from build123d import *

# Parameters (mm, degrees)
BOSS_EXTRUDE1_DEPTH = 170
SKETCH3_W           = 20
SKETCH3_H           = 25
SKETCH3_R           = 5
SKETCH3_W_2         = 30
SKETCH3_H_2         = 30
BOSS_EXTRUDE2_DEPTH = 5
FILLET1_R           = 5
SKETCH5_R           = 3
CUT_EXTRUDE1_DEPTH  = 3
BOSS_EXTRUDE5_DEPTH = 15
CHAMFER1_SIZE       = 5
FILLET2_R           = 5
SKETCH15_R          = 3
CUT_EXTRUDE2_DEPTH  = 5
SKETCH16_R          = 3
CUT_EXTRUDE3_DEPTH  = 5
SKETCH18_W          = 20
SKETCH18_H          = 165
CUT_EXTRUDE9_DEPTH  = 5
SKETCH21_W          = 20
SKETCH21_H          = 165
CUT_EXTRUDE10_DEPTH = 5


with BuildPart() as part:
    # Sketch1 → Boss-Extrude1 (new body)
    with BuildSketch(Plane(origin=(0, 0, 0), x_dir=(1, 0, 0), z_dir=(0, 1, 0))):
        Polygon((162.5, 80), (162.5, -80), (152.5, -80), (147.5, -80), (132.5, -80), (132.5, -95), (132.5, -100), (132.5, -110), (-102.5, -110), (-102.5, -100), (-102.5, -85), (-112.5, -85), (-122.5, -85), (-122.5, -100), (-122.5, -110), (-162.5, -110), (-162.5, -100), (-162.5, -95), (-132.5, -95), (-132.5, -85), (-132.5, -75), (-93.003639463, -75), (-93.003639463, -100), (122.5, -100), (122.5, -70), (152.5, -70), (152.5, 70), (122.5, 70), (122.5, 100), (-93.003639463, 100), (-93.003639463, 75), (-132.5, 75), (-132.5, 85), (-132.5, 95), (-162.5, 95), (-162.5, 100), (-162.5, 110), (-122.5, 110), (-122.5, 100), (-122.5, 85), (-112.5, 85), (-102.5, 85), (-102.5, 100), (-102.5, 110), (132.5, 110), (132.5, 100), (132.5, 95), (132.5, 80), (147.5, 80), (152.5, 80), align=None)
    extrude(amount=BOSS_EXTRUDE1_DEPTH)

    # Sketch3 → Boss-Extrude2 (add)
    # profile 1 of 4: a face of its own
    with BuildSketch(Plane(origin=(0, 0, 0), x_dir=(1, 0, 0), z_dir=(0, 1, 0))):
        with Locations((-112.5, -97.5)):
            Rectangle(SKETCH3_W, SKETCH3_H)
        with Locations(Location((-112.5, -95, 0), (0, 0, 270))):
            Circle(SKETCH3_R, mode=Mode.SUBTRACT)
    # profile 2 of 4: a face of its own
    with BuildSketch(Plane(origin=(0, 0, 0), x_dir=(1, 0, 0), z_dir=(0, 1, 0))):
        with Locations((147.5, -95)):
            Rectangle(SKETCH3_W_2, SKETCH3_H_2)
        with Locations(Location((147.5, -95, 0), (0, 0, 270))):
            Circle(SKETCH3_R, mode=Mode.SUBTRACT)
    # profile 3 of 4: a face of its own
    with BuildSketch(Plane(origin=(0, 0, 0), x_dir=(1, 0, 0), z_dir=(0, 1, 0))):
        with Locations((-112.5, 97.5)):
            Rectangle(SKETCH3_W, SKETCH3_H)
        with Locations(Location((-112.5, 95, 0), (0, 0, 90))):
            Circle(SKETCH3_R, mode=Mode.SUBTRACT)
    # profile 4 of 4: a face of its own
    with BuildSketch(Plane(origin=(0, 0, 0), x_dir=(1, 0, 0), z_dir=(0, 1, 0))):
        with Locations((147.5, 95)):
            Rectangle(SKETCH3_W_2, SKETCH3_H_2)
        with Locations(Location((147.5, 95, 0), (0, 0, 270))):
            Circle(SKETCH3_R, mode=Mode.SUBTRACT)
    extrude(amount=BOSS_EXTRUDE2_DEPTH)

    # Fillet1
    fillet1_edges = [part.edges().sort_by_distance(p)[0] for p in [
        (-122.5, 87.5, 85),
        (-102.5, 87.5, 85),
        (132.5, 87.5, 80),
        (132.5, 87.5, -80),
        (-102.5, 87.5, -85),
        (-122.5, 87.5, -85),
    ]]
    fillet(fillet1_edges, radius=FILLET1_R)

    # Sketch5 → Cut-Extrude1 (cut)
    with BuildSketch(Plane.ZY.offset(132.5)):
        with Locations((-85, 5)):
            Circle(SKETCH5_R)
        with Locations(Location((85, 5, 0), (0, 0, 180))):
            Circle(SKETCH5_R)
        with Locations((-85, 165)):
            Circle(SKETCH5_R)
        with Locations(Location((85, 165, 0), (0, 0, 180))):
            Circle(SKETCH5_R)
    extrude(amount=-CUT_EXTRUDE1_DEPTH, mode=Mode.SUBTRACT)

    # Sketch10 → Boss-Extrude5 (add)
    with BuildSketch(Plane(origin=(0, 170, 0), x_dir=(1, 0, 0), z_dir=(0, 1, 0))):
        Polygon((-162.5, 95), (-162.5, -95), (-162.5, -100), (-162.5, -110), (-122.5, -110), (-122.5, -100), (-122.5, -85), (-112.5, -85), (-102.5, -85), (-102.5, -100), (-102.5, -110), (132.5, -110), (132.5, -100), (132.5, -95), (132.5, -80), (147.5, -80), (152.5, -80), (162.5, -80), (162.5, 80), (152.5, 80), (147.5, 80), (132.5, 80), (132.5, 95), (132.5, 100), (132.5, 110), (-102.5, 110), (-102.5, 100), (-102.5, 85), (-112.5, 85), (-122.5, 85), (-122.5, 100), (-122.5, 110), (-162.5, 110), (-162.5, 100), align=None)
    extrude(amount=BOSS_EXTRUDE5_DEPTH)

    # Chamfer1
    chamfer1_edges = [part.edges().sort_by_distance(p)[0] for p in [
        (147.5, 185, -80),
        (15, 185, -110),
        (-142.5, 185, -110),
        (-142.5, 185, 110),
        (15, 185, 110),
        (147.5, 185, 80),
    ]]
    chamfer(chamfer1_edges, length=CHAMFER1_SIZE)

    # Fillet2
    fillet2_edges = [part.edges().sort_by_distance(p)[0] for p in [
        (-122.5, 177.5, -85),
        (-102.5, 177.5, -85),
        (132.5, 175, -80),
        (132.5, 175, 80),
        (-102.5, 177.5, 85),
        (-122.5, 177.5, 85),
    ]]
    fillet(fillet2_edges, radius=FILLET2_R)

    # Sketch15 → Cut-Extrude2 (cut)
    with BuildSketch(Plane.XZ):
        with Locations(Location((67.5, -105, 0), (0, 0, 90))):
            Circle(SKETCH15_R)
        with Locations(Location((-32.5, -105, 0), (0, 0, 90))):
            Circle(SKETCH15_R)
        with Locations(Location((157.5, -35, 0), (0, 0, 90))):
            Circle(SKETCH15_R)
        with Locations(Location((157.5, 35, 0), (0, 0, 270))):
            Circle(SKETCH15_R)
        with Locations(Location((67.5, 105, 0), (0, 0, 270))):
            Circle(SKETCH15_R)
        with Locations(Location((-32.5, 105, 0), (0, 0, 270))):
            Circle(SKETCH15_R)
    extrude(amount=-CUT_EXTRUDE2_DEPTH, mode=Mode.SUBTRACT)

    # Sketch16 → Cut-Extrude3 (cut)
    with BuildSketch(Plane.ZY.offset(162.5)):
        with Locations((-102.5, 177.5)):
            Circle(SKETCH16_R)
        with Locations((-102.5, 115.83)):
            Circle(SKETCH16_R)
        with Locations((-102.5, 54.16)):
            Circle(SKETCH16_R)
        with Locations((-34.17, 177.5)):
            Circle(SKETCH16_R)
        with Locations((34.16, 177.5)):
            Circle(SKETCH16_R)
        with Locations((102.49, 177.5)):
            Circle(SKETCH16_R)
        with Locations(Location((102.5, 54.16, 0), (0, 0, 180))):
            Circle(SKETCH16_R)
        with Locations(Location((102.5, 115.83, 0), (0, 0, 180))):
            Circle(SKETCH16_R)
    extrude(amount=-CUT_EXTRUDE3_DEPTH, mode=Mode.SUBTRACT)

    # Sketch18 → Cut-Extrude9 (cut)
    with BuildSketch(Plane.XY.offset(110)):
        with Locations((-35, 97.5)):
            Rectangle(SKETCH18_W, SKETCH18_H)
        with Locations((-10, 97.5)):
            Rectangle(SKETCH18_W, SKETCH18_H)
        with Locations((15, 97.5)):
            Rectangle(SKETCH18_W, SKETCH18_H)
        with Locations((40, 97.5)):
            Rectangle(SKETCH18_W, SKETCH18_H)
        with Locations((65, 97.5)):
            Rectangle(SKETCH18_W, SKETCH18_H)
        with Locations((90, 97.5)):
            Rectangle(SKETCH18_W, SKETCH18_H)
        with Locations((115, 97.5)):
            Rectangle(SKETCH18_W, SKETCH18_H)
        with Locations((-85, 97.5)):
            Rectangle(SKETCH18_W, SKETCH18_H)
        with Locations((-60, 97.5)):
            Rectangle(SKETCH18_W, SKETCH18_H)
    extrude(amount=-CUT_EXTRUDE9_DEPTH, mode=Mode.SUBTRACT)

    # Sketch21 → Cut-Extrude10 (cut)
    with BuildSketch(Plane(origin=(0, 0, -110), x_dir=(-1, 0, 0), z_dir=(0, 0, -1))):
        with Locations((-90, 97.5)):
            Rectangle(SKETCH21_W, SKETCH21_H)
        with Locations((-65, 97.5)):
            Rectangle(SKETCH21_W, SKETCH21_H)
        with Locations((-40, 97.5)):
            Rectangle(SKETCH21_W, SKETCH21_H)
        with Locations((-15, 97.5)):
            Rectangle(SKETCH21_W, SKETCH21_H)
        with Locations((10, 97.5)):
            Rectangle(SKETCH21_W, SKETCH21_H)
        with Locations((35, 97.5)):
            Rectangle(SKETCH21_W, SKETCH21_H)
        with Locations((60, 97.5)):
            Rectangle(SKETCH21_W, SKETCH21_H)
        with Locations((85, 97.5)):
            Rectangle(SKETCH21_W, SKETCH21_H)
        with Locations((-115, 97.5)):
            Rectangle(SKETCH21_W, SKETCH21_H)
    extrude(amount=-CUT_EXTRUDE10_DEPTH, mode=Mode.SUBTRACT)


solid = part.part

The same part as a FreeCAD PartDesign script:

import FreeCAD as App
import Part
import Sketcher

V = App.Vector


def edges_at(feature, points):
    """Names of the edges that pass closest to the given points."""
    edges = feature.Shape.Edges
    near = lambda p: min(range(len(edges)), key=lambda i: edges[i].distToShape(Part.Vertex(*p))[0])
    return sorted({f"Edge{near(p) + 1}" for p in points})

doc = App.newDocument("Part")
body = doc.addObject("PartDesign::Body", "Body")

sketch1 = doc.addObject("Sketcher::SketchObject", "Sketch")
body.addObject(sketch1)
sketch1.AttachmentSupport = (doc.XZ_Plane, [""])
sketch1.MapMode = "FlatFace"
sketch1.addGeometry([
    Part.LineSegment(V(162, 80, 0), V(162, -80, 0)),
    Part.LineSegment(V(162, -80, 0), V(132, -80, 0)),
    Part.LineSegment(V(132, -80, 0), V(132, -110, 0)),
    Part.LineSegment(V(132, -110, 0), V(-102, -110, 0)),
    Part.LineSegment(V(-102, -110, 0), V(-102, -85, 0)),
    Part.LineSegment(V(-102, -85, 0), V(-122, -85, 0)),
    Part.LineSegment(V(-122, -85, 0), V(-122, -110, 0)),
    Part.LineSegment(V(-122, -110, 0), V(-162, -110, 0)),
    Part.LineSegment(V(-162, -110, 0), V(-162, -95, 0)),
    Part.LineSegment(V(-162, -95, 0), V(-132, -95, 0)),
    Part.LineSegment(V(-132, -95, 0), V(-132, -75, 0)),
    Part.LineSegment(V(-132, -75, 0), V(-93, -75, 0)),
    Part.LineSegment(V(-93, -75, 0), V(-93, -100, 0)),
    Part.LineSegment(V(-93, -100, 0), V(122, -100, 0)),
    Part.LineSegment(V(122, -100, 0), V(122, -70, 0)),
    Part.LineSegment(V(122, -70, 0), V(152, -70, 0)),
    Part.LineSegment(V(152, -70, 0), V(152, 70, 0)),
    Part.LineSegment(V(152, 70, 0), V(122, 70, 0)),
    Part.LineSegment(V(122, 70, 0), V(122, 100, 0)),
    Part.LineSegment(V(122, 100, 0), V(-93, 100, 0)),
    Part.LineSegment(V(-93, 100, 0), V(-93, 75, 0)),
    Part.LineSegment(V(-93, 75, 0), V(-132, 75, 0)),
    Part.LineSegment(V(-132, 75, 0), V(-132, 95, 0)),
    Part.LineSegment(V(-132, 95, 0), V(-162, 95, 0)),
    Part.LineSegment(V(-162, 95, 0), V(-162, 110, 0)),
    Part.LineSegment(V(-162, 110, 0), V(-122, 110, 0)),
    Part.LineSegment(V(-122, 110, 0), V(-122, 85, 0)),
    Part.LineSegment(V(-122, 85, 0), V(-102, 85, 0)),
    Part.LineSegment(V(-102, 85, 0), V(-102, 110, 0)),
    Part.LineSegment(V(-102, 110, 0), V(132, 110, 0)),
    Part.LineSegment(V(132, 110, 0), V(132, 80, 0)),
    Part.LineSegment(V(132, 80, 0), V(162, 80, 0)),
], False)
sketch1.addConstraint([
    Sketcher.Constraint("Coincident", 0, 2, 1, 1),
    Sketcher.Constraint("Coincident", 1, 2, 2, 1),
    Sketcher.Constraint("Coincident", 2, 2, 3, 1),
    Sketcher.Constraint("Coincident", 3, 2, 4, 1),
    Sketcher.Constraint("Coincident", 4, 2, 5, 1),
    Sketcher.Constraint("Coincident", 5, 2, 6, 1),
    Sketcher.Constraint("Coincident", 6, 2, 7, 1),
    Sketcher.Constraint("Coincident", 7, 2, 8, 1),
    Sketcher.Constraint("Coincident", 8, 2, 9, 1),
    Sketcher.Constraint("Coincident", 9, 2, 10, 1),
    Sketcher.Constraint("Coincident", 10, 2, 11, 1),
    Sketcher.Constraint("Coincident", 11, 2, 12, 1),
    Sketcher.Constraint("Coincident", 12, 2, 13, 1),
    Sketcher.Constraint("Coincident", 13, 2, 14, 1),
    Sketcher.Constraint("Coincident", 14, 2, 15, 1),
    Sketcher.Constraint("Coincident", 15, 2, 16, 1),
    Sketcher.Constraint("Coincident", 16, 2, 17, 1),
    Sketcher.Constraint("Coincident", 17, 2, 18, 1),
    Sketcher.Constraint("Coincident", 18, 2, 19, 1),
    Sketcher.Constraint("Coincident", 19, 2, 20, 1),
    Sketcher.Constraint("Coincident", 20, 2, 21, 1),
    Sketcher.Constraint("Coincident", 21, 2, 22, 1),
    Sketcher.Constraint("Coincident", 22, 2, 23, 1),
    Sketcher.Constraint("Coincident", 23, 2, 24, 1),
    Sketcher.Constraint("Coincident", 24, 2, 25, 1),
    Sketcher.Constraint("Coincident", 25, 2, 26, 1),
    Sketcher.Constraint("Coincident", 26, 2, 27, 1),
    Sketcher.Constraint("Coincident", 27, 2, 28, 1),
    Sketcher.Constraint("Coincident", 28, 2, 29, 1),
    Sketcher.Constraint("Coincident", 29, 2, 30, 1),
    Sketcher.Constraint("Coincident", 30, 2, 31, 1),
    Sketcher.Constraint("Coincident", 31, 2, 0, 1),
    Sketcher.Constraint("Vertical", 0),
    Sketcher.Constraint("Horizontal", 1),
    Sketcher.Constraint("Vertical", 2),
    Sketcher.Constraint("Horizontal", 3),
    Sketcher.Constraint("Vertical", 4),
    Sketcher.Constraint("Horizontal", 5),
    Sketcher.Constraint("Vertical", 6),
    Sketcher.Constraint("Horizontal", 7),
    Sketcher.Constraint("Vertical", 8),
    Sketcher.Constraint("Horizontal", 9),
    Sketcher.Constraint("Vertical", 10),
    Sketcher.Constraint("Horizontal", 11),
    Sketcher.Constraint("Vertical", 12),
    Sketcher.Constraint("Horizontal", 13),
    Sketcher.Constraint("Vertical", 14),
    Sketcher.Constraint("Horizontal", 15),
    Sketcher.Constraint("Vertical", 16),
    Sketcher.Constraint("Horizontal", 17),
    Sketcher.Constraint("Vertical", 18),
    Sketcher.Constraint("Horizontal", 19),
    Sketcher.Constraint("Vertical", 20),
    Sketcher.Constraint("Horizontal", 21),
    Sketcher.Constraint("Vertical", 22),
    Sketcher.Constraint("Horizontal", 23),
    Sketcher.Constraint("Vertical", 24),
    Sketcher.Constraint("Horizontal", 25),
    Sketcher.Constraint("Vertical", 26),
    Sketcher.Constraint("Horizontal", 27),
    Sketcher.Constraint("Vertical", 28),
    Sketcher.Constraint("Horizontal", 29),
    Sketcher.Constraint("Vertical", 30),
    Sketcher.Constraint("Horizontal", 31),
    Sketcher.Constraint("Symmetric", 14, 2, 17, 2, -1),
    Sketcher.Constraint("Symmetric", 12, 2, 19, 2, -1),
    Sketcher.Constraint("Symmetric", 10, 2, 21, 2, -1),
    Sketcher.Constraint("Symmetric", 8, 2, 23, 2, -1),
    Sketcher.Constraint("Symmetric", 6, 2, 25, 2, -1),
    Sketcher.Constraint("Symmetric", 4, 2, 27, 2, -1),
    Sketcher.Constraint("Symmetric", 2, 2, 29, 2, -1),
    Sketcher.Constraint("Horizontal", 3, 2, 6, 2),
    Sketcher.Constraint("Equal", 1, 9),
    Sketcher.Constraint("Equal", 9, 15),
    Sketcher.Constraint("Equal", 31, 2),
    Sketcher.Constraint("Equal", 27, 10),
    Sketcher.Constraint("Equal", 6, 12),
    Sketcher.Constraint("Equal", 2, 14),
    Sketcher.Constraint("Equal", 18, 30),
    Sketcher.Constraint("DistanceX", 1, 2, 1, 1, 30.0),
    Sketcher.Constraint("DistanceX", 3, 2, 3, 1, 235.0),
    Sketcher.Constraint("DistanceX", 5, 2, 5, 1, 20.0),
    Sketcher.Constraint("DistanceX", 7, 2, 7, 1, 40.0),
    Sketcher.Constraint("DistanceY", 0, 2, 0, 1, 160.0),
    Sketcher.Constraint("DistanceY", 4, 1, 4, 2, 25.0),
    Sketcher.Constraint("DistanceY", 8, 1, 8, 2, 15.0),
    Sketcher.Constraint("DistanceX", 13, 2, 2, 2, 10.0),
    Sketcher.Constraint("DistanceX", -1, 1, 0, 2, 162.5),
    Sketcher.Constraint("DistanceX", 11, 1, 11, 2, 39.496361),
])
pad1 = doc.addObject("PartDesign::Pad", "Pad")
body.addObject(pad1)
pad1.Profile = sketch1
pad1.Length = 170
pad1.Reversed = True

sketch2 = doc.addObject("Sketcher::SketchObject", "Sketch001")
body.addObject(sketch2)
sketch2.AttachmentSupport = (doc.XZ_Plane, [""])
sketch2.MapMode = "FlatFace"
sketch2.addGeometry([
    Part.LineSegment(V(-122, 85, 0), V(-122, 110, 0)),
    Part.LineSegment(V(-122, 110, 0), V(-102, 110, 0)),
    Part.LineSegment(V(-102, 110, 0), V(-102, 85, 0)),
    Part.LineSegment(V(-102, 85, 0), V(-122, 85, 0)),
    Part.Circle(V(-112, 95, 0), V(0, 0, 1), 5),
    Part.LineSegment(V(132, 80, 0), V(132, 110, 0)),
    Part.LineSegment(V(132, 110, 0), V(162, 110, 0)),
    Part.LineSegment(V(162, 110, 0), V(162, 80, 0)),
    Part.LineSegment(V(162, 80, 0), V(132, 80, 0)),
    Part.Circle(V(148, 95, 0), V(0, 0, 1), 5),
    Part.LineSegment(V(-122, -110, 0), V(-122, -85, 0)),
    Part.LineSegment(V(-122, -85, 0), V(-102, -85, 0)),
    Part.LineSegment(V(-102, -85, 0), V(-102, -110, 0)),
    Part.LineSegment(V(-102, -110, 0), V(-122, -110, 0)),
    Part.Circle(V(-112, -95, 0), V(0, 0, 1), 5),
    Part.LineSegment(V(132, -110, 0), V(132, -80, 0)),
    Part.LineSegment(V(132, -80, 0), V(162, -80, 0)),
    Part.LineSegment(V(162, -80, 0), V(162, -110, 0)),
    Part.LineSegment(V(162, -110, 0), V(132, -110, 0)),
    Part.Circle(V(148, -95, 0), V(0, 0, 1), 5),
], False)
sketch2.addConstraint([
    Sketcher.Constraint("Coincident", 0, 2, 1, 1),
    Sketcher.Constraint("Coincident", 1, 2, 2, 1),
    Sketcher.Constraint("Coincident", 2, 2, 3, 1),
    Sketcher.Constraint("Coincident", 3, 2, 0, 1),
    Sketcher.Constraint("Coincident", 5, 2, 6, 1),
    Sketcher.Constraint("Coincident", 6, 2, 7, 1),
    Sketcher.Constraint("Coincident", 7, 2, 8, 1),
    Sketcher.Constraint("Coincident", 8, 2, 5, 1),
    Sketcher.Constraint("Coincident", 10, 2, 11, 1),
    Sketcher.Constraint("Coincident", 11, 2, 12, 1),
    Sketcher.Constraint("Coincident", 12, 2, 13, 1),
    Sketcher.Constraint("Coincident", 13, 2, 10, 1),
    Sketcher.Constraint("Coincident", 15, 2, 16, 1),
    Sketcher.Constraint("Coincident", 16, 2, 17, 1),
    Sketcher.Constraint("Coincident", 17, 2, 18, 1),
    Sketcher.Constraint("Coincident", 18, 2, 15, 1),
    Sketcher.Constraint("Vertical", 0),
    Sketcher.Constraint("Horizontal", 1),
    Sketcher.Constraint("Vertical", 2),
    Sketcher.Constraint("Horizontal", 3),
    Sketcher.Constraint("Vertical", 5),
    Sketcher.Constraint("Horizontal", 6),
    Sketcher.Constraint("Vertical", 7),
    Sketcher.Constraint("Horizontal", 8),
    Sketcher.Constraint("Vertical", 10),
    Sketcher.Constraint("Horizontal", 11),
    Sketcher.Constraint("Vertical", 12),
    Sketcher.Constraint("Horizontal", 13),
    Sketcher.Constraint("Vertical", 15),
    Sketcher.Constraint("Horizontal", 16),
    Sketcher.Constraint("Vertical", 17),
    Sketcher.Constraint("Horizontal", 18),
    Sketcher.Constraint("Equal", 4, 9),
    Sketcher.Constraint("Equal", 9, 14),
    Sketcher.Constraint("Equal", 14, 19),
    Sketcher.Constraint("Symmetric", 4, 3, 14, 3, -1),
    Sketcher.Constraint("Symmetric", 9, 3, 19, 3, -1),
    Sketcher.Constraint("Symmetric", 3, 2, 10, 2, -1),
    Sketcher.Constraint("Symmetric", 1, 2, 12, 2, -1),
    Sketcher.Constraint("Symmetric", 8, 2, 15, 2, -1),
    Sketcher.Constraint("Symmetric", 6, 2, 17, 2, -1),
    Sketcher.Constraint("Horizontal", 4, 3, 9, 3),
    Sketcher.Constraint("Horizontal", 1, 2, 5, 2),
    Sketcher.Constraint("Equal", 18, 5),
    Sketcher.Constraint("Diameter", 4, 10.0),
    Sketcher.Constraint("DistanceX", 1, 1, 1, 2, 20.0),
    Sketcher.Constraint("DistanceX", 6, 1, 6, 2, 30.0),
    Sketcher.Constraint("DistanceY", 0, 1, 0, 2, 25.0),
    Sketcher.Constraint("DistanceY", -1, 1, 4, 3, 95.0),
    Sketcher.Constraint("DistanceY", -1, 1, 0, 2, 110.0),
    Sketcher.Constraint("DistanceX", 4, 3, 9, 3, 260.0),
    Sketcher.Constraint("DistanceX", 0, 2, 4, 3, 10.0),
    Sketcher.Constraint("DistanceX", 5, 2, 9, 3, 15.0),
    Sketcher.Constraint("DistanceX", 4, 3, -1, 1, 112.5),
])
pad2 = doc.addObject("PartDesign::Pad", "Pad001")
body.addObject(pad2)
pad2.Profile = sketch2
pad2.Length = 5
pad2.Reversed = True
doc.recompute()

fillet = doc.addObject("PartDesign::Fillet", "Fillet")
body.addObject(fillet)
fillet.Base = (pad2, edges_at(pad2, [
    (-122.5, 87.5, 85),
    (-102.5, 87.5, 85),
    (132.5, 87.5, 80),
    (132.5, 87.5, -80),
    (-102.5, 87.5, -85),
    (-122.5, 87.5, -85),
]))
fillet.Radius = 5

sketch3 = doc.addObject("Sketcher::SketchObject", "Sketch002")
body.addObject(sketch3)
sketch3.AttachmentSupport = (doc.YZ_Plane, [""])
sketch3.MapMode = "FlatFace"
sketch3.AttachmentOffset = App.Placement(V(0, 0, -132.5), App.Rotation())
sketch3.addGeometry([
    Part.Circle(V(5, -85, 0), V(0, 0, 1), 3),
    Part.Circle(V(5, 85, 0), V(0, 0, 1), 3),
    Part.Circle(V(165, -85, 0), V(0, 0, 1), 3),
    Part.Circle(V(165, 85, 0), V(0, 0, 1), 3),
], False)
sketch3.addConstraint([
    Sketcher.Constraint("Equal", 0, 1),
    Sketcher.Constraint("Equal", 1, 2),
    Sketcher.Constraint("Equal", 2, 3),
    Sketcher.Constraint("Symmetric", 0, 3, 1, 3, -1),
    Sketcher.Constraint("Symmetric", 2, 3, 3, 3, -1),
    Sketcher.Constraint("Horizontal", 0, 3, 2, 3),
    Sketcher.Constraint("Diameter", 0, 6.0),
    Sketcher.Constraint("DistanceX", -1, 1, 0, 3, 5.0),
    Sketcher.Constraint("DistanceY", 0, 3, -1, 1, 85.0),
    Sketcher.Constraint("DistanceX", -1, 1, 2, 3, 165.0),
])
pocket1 = doc.addObject("PartDesign::Pocket", "Pocket")
body.addObject(pocket1)
pocket1.Profile = sketch3
pocket1.Length = 3
pocket1.Reversed = True

sketch4 = doc.addObject("Sketcher::SketchObject", "Sketch003")
body.addObject(sketch4)
sketch4.AttachmentSupport = (doc.XZ_Plane, [""])
sketch4.MapMode = "FlatFace"
sketch4.AttachmentOffset = App.Placement(V(0, 0, -170), App.Rotation())
sketch4.addGeometry([
    Part.LineSegment(V(-162, 110, 0), V(-122, 110, 0)),
    Part.LineSegment(V(-122, 110, 0), V(-122, 85, 0)),
    Part.LineSegment(V(-122, 85, 0), V(-102, 85, 0)),
    Part.LineSegment(V(-102, 85, 0), V(-102, 110, 0)),
    Part.LineSegment(V(-102, 110, 0), V(132, 110, 0)),
    Part.LineSegment(V(132, 110, 0), V(132, 80, 0)),
    Part.LineSegment(V(132, 80, 0), V(162, 80, 0)),
    Part.LineSegment(V(162, 80, 0), V(162, -80, 0)),
    Part.LineSegment(V(162, -80, 0), V(132, -80, 0)),
    Part.LineSegment(V(132, -80, 0), V(132, -110, 0)),
    Part.LineSegment(V(132, -110, 0), V(-102, -110, 0)),
    Part.LineSegment(V(-102, -110, 0), V(-102, -85, 0)),
    Part.LineSegment(V(-102, -85, 0), V(-122, -85, 0)),
    Part.LineSegment(V(-122, -85, 0), V(-122, -110, 0)),
    Part.LineSegment(V(-122, -110, 0), V(-162, -110, 0)),
    Part.LineSegment(V(-162, -110, 0), V(-162, 110, 0)),
], False)
sketch4.addConstraint([
    Sketcher.Constraint("Coincident", 0, 2, 1, 1),
    Sketcher.Constraint("Coincident", 1, 2, 2, 1),
    Sketcher.Constraint("Coincident", 2, 2, 3, 1),
    Sketcher.Constraint("Coincident", 3, 2, 4, 1),
    Sketcher.Constraint("Coincident", 4, 2, 5, 1),
    Sketcher.Constraint("Coincident", 5, 2, 6, 1),
    Sketcher.Constraint("Coincident", 6, 2, 7, 1),
    Sketcher.Constraint("Coincident", 7, 2, 8, 1),
    Sketcher.Constraint("Coincident", 8, 2, 9, 1),
    Sketcher.Constraint("Coincident", 9, 2, 10, 1),
    Sketcher.Constraint("Coincident", 10, 2, 11, 1),
    Sketcher.Constraint("Coincident", 11, 2, 12, 1),
    Sketcher.Constraint("Coincident", 12, 2, 13, 1),
    Sketcher.Constraint("Coincident", 13, 2, 14, 1),
    Sketcher.Constraint("Coincident", 14, 2, 15, 1),
    Sketcher.Constraint("Coincident", 15, 2, 0, 1),
    Sketcher.Constraint("Horizontal", 0),
    Sketcher.Constraint("Vertical", 1),
    Sketcher.Constraint("Horizontal", 2),
    Sketcher.Constraint("Vertical", 3),
    Sketcher.Constraint("Horizontal", 4),
    Sketcher.Constraint("Vertical", 5),
    Sketcher.Constraint("Horizontal", 6),
    Sketcher.Constraint("Vertical", 7),
    Sketcher.Constraint("Horizontal", 8),
    Sketcher.Constraint("Vertical", 9),
    Sketcher.Constraint("Horizontal", 10),
    Sketcher.Constraint("Vertical", 11),
    Sketcher.Constraint("Horizontal", 12),
    Sketcher.Constraint("Vertical", 13),
    Sketcher.Constraint("Horizontal", 14),
    Sketcher.Constraint("Vertical", 15),
    Sketcher.Constraint("Symmetric", 5, 2, 8, 2, -1),
    Sketcher.Constraint("Symmetric", 3, 2, 10, 2, -1),
    Sketcher.Constraint("Symmetric", 1, 2, 12, 2, -1),
    Sketcher.Constraint("Horizontal", 0, 2, 3, 2),
    Sketcher.Constraint("Horizontal", 10, 2, 13, 2),
    Sketcher.Constraint("Equal", 8, 5),
    Sketcher.Constraint("DistanceX", 0, 1, 0, 2, 40.0),
    Sketcher.Constraint("DistanceX", 2, 1, 2, 2, 20.0),
    Sketcher.Constraint("DistanceX", 4, 1, 4, 2, 235.0),
    Sketcher.Constraint("DistanceX", 6, 1, 6, 2, 30.0),
    Sketcher.Constraint("DistanceY", 1, 2, 1, 1, 25.0),
    Sketcher.Constraint("DistanceY", 7, 2, 7, 1, 160.0),
    Sketcher.Constraint("DistanceX", 0, 2, -1, 1, 122.5),
])
pad3 = doc.addObject("PartDesign::Pad", "Pad002")
body.addObject(pad3)
pad3.Profile = sketch4
pad3.Length = 15
pad3.Reversed = True
doc.recompute()

chamfer = doc.addObject("PartDesign::Chamfer", "Chamfer")
body.addObject(chamfer)
chamfer.Base = (pad3, edges_at(pad3, [
    (147.5, 185, -80),
    (15, 185, -110),
    (-142.5, 185, -110),
    (-142.5, 185, 110),
    (15, 185, 110),
    (147.5, 185, 80),
]))
chamfer.Size = 5
doc.recompute()

fillet2 = doc.addObject("PartDesign::Fillet", "Fillet001")
body.addObject(fillet2)
fillet2.Base = (chamfer, edges_at(chamfer, [
    (-122.5, 177.5, -85),
    (-102.5, 177.5, -85),
    (132.5, 175, -80),
    (132.5, 175, 80),
    (-102.5, 177.5, 85),
    (-122.5, 177.5, 85),
]))
fillet2.Radius = 5

sketch5 = doc.addObject("Sketcher::SketchObject", "Sketch004")
body.addObject(sketch5)
sketch5.AttachmentSupport = (doc.XZ_Plane, [""])
sketch5.MapMode = "FlatFace"
sketch5.addGeometry([
    Part.Circle(V(67.5, -105, 0), V(0, 0, 1), 3),
    Part.Circle(V(-32.5, -105, 0), V(0, 0, 1), 3),
    Part.Circle(V(157.5, -35, 0), V(0, 0, 1), 3),
    Part.Circle(V(157.5, 35, 0), V(0, 0, 1), 3),
    Part.Circle(V(67.5, 105, 0), V(0, 0, 1), 3),
    Part.Circle(V(-32.5, 105, 0), V(0, 0, 1), 3),
], False)
sketch5.addConstraint([
    Sketcher.Constraint("Equal", 0, 1),
    Sketcher.Constraint("Equal", 1, 2),
    Sketcher.Constraint("Equal", 2, 3),
    Sketcher.Constraint("Equal", 3, 4),
    Sketcher.Constraint("Equal", 4, 5),
    Sketcher.Constraint("Symmetric", 2, 3, 3, 3, -1),
    Sketcher.Constraint("Symmetric", 0, 3, 4, 3, -1),
    Sketcher.Constraint("Symmetric", 1, 3, 5, 3, -1),
    Sketcher.Constraint("Horizontal", 0, 3, 1, 3),
    Sketcher.Constraint("Diameter", 0, 6.0),
    Sketcher.Constraint("DistanceY", 0, 3, -1, 1, 105.0),
    Sketcher.Constraint("DistanceY", 2, 3, -1, 1, 35.0),
    Sketcher.Constraint("DistanceX", 1, 3, 0, 3, 100.0),
    Sketcher.Constraint("DistanceX", 0, 3, 2, 3, 90.0),
    Sketcher.Constraint("DistanceX", -1, 1, 0, 3, 67.5),
])
pocket2 = doc.addObject("PartDesign::Pocket", "Pocket001")
body.addObject(pocket2)
pocket2.Profile = sketch5
pocket2.Length = 5

sketch6 = doc.addObject("Sketcher::SketchObject", "Sketch005")
body.addObject(sketch6)
sketch6.AttachmentSupport = (doc.YZ_Plane, [""])
sketch6.MapMode = "FlatFace"
sketch6.AttachmentOffset = App.Placement(V(0, 0, -162.5), App.Rotation())
sketch6.addGeometry([
    Part.Circle(V(177.5, -102.5, 0), V(0, 0, 1), 3),
    Part.Circle(V(115.8, -102.5, 0), V(0, 0, 1), 3),
    Part.Circle(V(54.2, -102.5, 0), V(0, 0, 1), 3),
    Part.Circle(V(177.5, -34.2, 0), V(0, 0, 1), 3),
    Part.Circle(V(177.5, 34.2, 0), V(0, 0, 1), 3),
    Part.Circle(V(177.5, 102.5, 0), V(0, 0, 1), 3),
    Part.Circle(V(54.2, 102.5, 0), V(0, 0, 1), 3),
    Part.Circle(V(115.8, 102.5, 0), V(0, 0, 1), 3),
], False)
sketch6.addConstraint([
    Sketcher.Constraint("Equal", 0, 1),
    Sketcher.Constraint("Equal", 1, 2),
    Sketcher.Constraint("Equal", 2, 3),
    Sketcher.Constraint("Equal", 3, 4),
    Sketcher.Constraint("Equal", 4, 5),
    Sketcher.Constraint("Equal", 5, 6),
    Sketcher.Constraint("Equal", 6, 7),
    Sketcher.Constraint("Symmetric", 2, 3, 6, 3, -1),
    Sketcher.Constraint("Symmetric", 1, 3, 7, 3, -1),
    Sketcher.Constraint("Horizontal", 0, 3, 1, 3),
    Sketcher.Constraint("Horizontal", 1, 3, 2, 3),
    Sketcher.Constraint("Vertical", 0, 3, 3, 3),
    Sketcher.Constraint("Vertical", 3, 3, 4, 3),
    Sketcher.Constraint("Vertical", 4, 3, 5, 3),
    Sketcher.Constraint("Diameter", 0, 6.0),
    Sketcher.Constraint("DistanceY", 2, 3, 6, 3, 205.0),
    Sketcher.Constraint("DistanceX", -1, 1, 0, 3, 177.5),
    Sketcher.Constraint("DistanceX", -1, 1, 1, 3, 115.83),
    Sketcher.Constraint("DistanceX", -1, 1, 2, 3, 54.16),
    Sketcher.Constraint("DistanceY", 3, 3, -1, 1, 34.17),
    Sketcher.Constraint("DistanceY", -1, 1, 4, 3, 34.16),
    Sketcher.Constraint("DistanceY", -1, 1, 5, 3, 102.49),
])
pocket3 = doc.addObject("PartDesign::Pocket", "Pocket002")
body.addObject(pocket3)
pocket3.Profile = sketch6
pocket3.Length = 5
pocket3.Reversed = True

sketch7 = doc.addObject("Sketcher::SketchObject", "Sketch006")
body.addObject(sketch7)
sketch7.AttachmentSupport = (doc.XY_Plane, [""])
sketch7.MapMode = "FlatFace"
sketch7.AttachmentOffset = App.Placement(V(0, 0, 110), App.Rotation())
sketch7.addGeometry([
    Part.LineSegment(V(-45, 180, 0), V(-45, 15, 0)),
    Part.LineSegment(V(-45, 15, 0), V(-25, 15, 0)),
    Part.LineSegment(V(-25, 15, 0), V(-25, 180, 0)),
    Part.LineSegment(V(-25, 180, 0), V(-45, 180, 0)),
    Part.LineSegment(V(-20, 180, 0), V(-20, 15, 0)),
    Part.LineSegment(V(-20, 15, 0), V(0, 15, 0)),
    Part.LineSegment(V(0, 15, 0), V(0, 180, 0)),
    Part.LineSegment(V(0, 180, 0), V(-20, 180, 0)),
    Part.LineSegment(V(5, 180, 0), V(5, 15, 0)),
    Part.LineSegment(V(5, 15, 0), V(25, 15, 0)),
    Part.LineSegment(V(25, 15, 0), V(25, 180, 0)),
    Part.LineSegment(V(25, 180, 0), V(5, 180, 0)),
    Part.LineSegment(V(30, 180, 0), V(30, 15, 0)),
    Part.LineSegment(V(30, 15, 0), V(50, 15, 0)),
    Part.LineSegment(V(50, 15, 0), V(50, 180, 0)),
    Part.LineSegment(V(50, 180, 0), V(30, 180, 0)),
    Part.LineSegment(V(55, 180, 0), V(55, 15, 0)),
    Part.LineSegment(V(55, 15, 0), V(75, 15, 0)),
    Part.LineSegment(V(75, 15, 0), V(75, 180, 0)),
    Part.LineSegment(V(75, 180, 0), V(55, 180, 0)),
    Part.LineSegment(V(80, 180, 0), V(80, 15, 0)),
    Part.LineSegment(V(80, 15, 0), V(100, 15, 0)),
    Part.LineSegment(V(100, 15, 0), V(100, 180, 0)),
    Part.LineSegment(V(100, 180, 0), V(80, 180, 0)),
    Part.LineSegment(V(105, 180, 0), V(105, 15, 0)),
    Part.LineSegment(V(105, 15, 0), V(125, 15, 0)),
    Part.LineSegment(V(125, 15, 0), V(125, 180, 0)),
    Part.LineSegment(V(125, 180, 0), V(105, 180, 0)),
    Part.LineSegment(V(-95, 180, 0), V(-95, 15, 0)),
    Part.LineSegment(V(-95, 15, 0), V(-75, 15, 0)),
    Part.LineSegment(V(-75, 15, 0), V(-75, 180, 0)),
    Part.LineSegment(V(-75, 180, 0), V(-95, 180, 0)),
    Part.LineSegment(V(-70, 180, 0), V(-70, 15, 0)),
    Part.LineSegment(V(-70, 15, 0), V(-50, 15, 0)),
    Part.LineSegment(V(-50, 15, 0), V(-50, 180, 0)),
    Part.LineSegment(V(-50, 180, 0), V(-70, 180, 0)),
], False)
sketch7.addConstraint([
    Sketcher.Constraint("Coincident", 0, 2, 1, 1),
    Sketcher.Constraint("Coincident", 1, 2, 2, 1),
    Sketcher.Constraint("Coincident", 2, 2, 3, 1),
    Sketcher.Constraint("Coincident", 3, 2, 0, 1),
    Sketcher.Constraint("Coincident", 4, 2, 5, 1),
    Sketcher.Constraint("Coincident", 5, 2, 6, 1),
    Sketcher.Constraint("Coincident", 6, 2, 7, 1),
    Sketcher.Constraint("Coincident", 7, 2, 4, 1),
    Sketcher.Constraint("Coincident", 8, 2, 9, 1),
    Sketcher.Constraint("Coincident", 9, 2, 10, 1),
    Sketcher.Constraint("Coincident", 10, 2, 11, 1),
    Sketcher.Constraint("Coincident", 11, 2, 8, 1),
    Sketcher.Constraint("Coincident", 12, 2, 13, 1),
    Sketcher.Constraint("Coincident", 13, 2, 14, 1),
    Sketcher.Constraint("Coincident", 14, 2, 15, 1),
    Sketcher.Constraint("Coincident", 15, 2, 12, 1),
    Sketcher.Constraint("Coincident", 16, 2, 17, 1),
    Sketcher.Constraint("Coincident", 17, 2, 18, 1),
    Sketcher.Constraint("Coincident", 18, 2, 19, 1),
    Sketcher.Constraint("Coincident", 19, 2, 16, 1),
    Sketcher.Constraint("Coincident", 20, 2, 21, 1),
    Sketcher.Constraint("Coincident", 21, 2, 22, 1),
    Sketcher.Constraint("Coincident", 22, 2, 23, 1),
    Sketcher.Constraint("Coincident", 23, 2, 20, 1),
    Sketcher.Constraint("Coincident", 24, 2, 25, 1),
    Sketcher.Constraint("Coincident", 25, 2, 26, 1),
    Sketcher.Constraint("Coincident", 26, 2, 27, 1),
    Sketcher.Constraint("Coincident", 27, 2, 24, 1),
    Sketcher.Constraint("Coincident", 28, 2, 29, 1),
    Sketcher.Constraint("Coincident", 29, 2, 30, 1),
    Sketcher.Constraint("Coincident", 30, 2, 31, 1),
    Sketcher.Constraint("Coincident", 31, 2, 28, 1),
    Sketcher.Constraint("Coincident", 32, 2, 33, 1),
    Sketcher.Constraint("Coincident", 33, 2, 34, 1),
    Sketcher.Constraint("Coincident", 34, 2, 35, 1),
    Sketcher.Constraint("Coincident", 35, 2, 32, 1),
    Sketcher.Constraint("Vertical", 0),
    Sketcher.Constraint("Horizontal", 1),
    Sketcher.Constraint("Vertical", 2),
    Sketcher.Constraint("Horizontal", 3),
    Sketcher.Constraint("Vertical", 4),
    Sketcher.Constraint("Horizontal", 5),
    Sketcher.Constraint("Vertical", 6),
    Sketcher.Constraint("Horizontal", 7),
    Sketcher.Constraint("Vertical", 8),
    Sketcher.Constraint("Horizontal", 9),
    Sketcher.Constraint("Vertical", 10),
    Sketcher.Constraint("Horizontal", 11),
    Sketcher.Constraint("Vertical", 12),
    Sketcher.Constraint("Horizontal", 13),
    Sketcher.Constraint("Vertical", 14),
    Sketcher.Constraint("Horizontal", 15),
    Sketcher.Constraint("Vertical", 16),
    Sketcher.Constraint("Horizontal", 17),
    Sketcher.Constraint("Vertical", 18),
    Sketcher.Constraint("Horizontal", 19),
    Sketcher.Constraint("Vertical", 20),
    Sketcher.Constraint("Horizontal", 21),
    Sketcher.Constraint("Vertical", 22),
    Sketcher.Constraint("Horizontal", 23),
    Sketcher.Constraint("Vertical", 24),
    Sketcher.Constraint("Horizontal", 25),
    Sketcher.Constraint("Vertical", 26),
    Sketcher.Constraint("Horizontal", 27),
    Sketcher.Constraint("Vertical", 28),
    Sketcher.Constraint("Horizontal", 29),
    Sketcher.Constraint("Vertical", 30),
    Sketcher.Constraint("Horizontal", 31),
    Sketcher.Constraint("Vertical", 32),
    Sketcher.Constraint("Horizontal", 33),
    Sketcher.Constraint("Vertical", 34),
    Sketcher.Constraint("Horizontal", 35),
    Sketcher.Constraint("Symmetric", 1, 2, 9, 2, -2),
    Sketcher.Constraint("Symmetric", 17, 2, 29, 2, -2),
    Sketcher.Constraint("Symmetric", 13, 2, 33, 2, -2),
    Sketcher.Constraint("PointOnObject", 5, 2, -2),
    Sketcher.Constraint("Horizontal", 1, 2, 4, 2),
    Sketcher.Constraint("Horizontal", 3, 2, 6, 2),
    Sketcher.Constraint("Horizontal", 7, 2, 10, 2),
    Sketcher.Constraint("Horizontal", 9, 2, 12, 2),
    Sketcher.Constraint("Horizontal", 11, 2, 14, 2),
    Sketcher.Constraint("Horizontal", 13, 2, 16, 2),
    Sketcher.Constraint("Horizontal", 15, 2, 18, 2),
    Sketcher.Constraint("Horizontal", 17, 2, 20, 2),
    Sketcher.Constraint("Horizontal", 19, 2, 22, 2),
    Sketcher.Constraint("Horizontal", 21, 2, 24, 2),
    Sketcher.Constraint("Horizontal", 23, 2, 26, 2),
    Sketcher.Constraint("Horizontal", 27, 2, 30, 2),
    Sketcher.Constraint("Horizontal", 31, 2, 34, 2),
    Sketcher.Constraint("Equal", 3, 5),
    Sketcher.Constraint("Equal", 7, 9),
    Sketcher.Constraint("Equal", 11, 13),
    Sketcher.Constraint("Equal", 15, 17),
    Sketcher.Constraint("Equal", 19, 21),
    Sketcher.Constraint("Equal", 23, 25),
    Sketcher.Constraint("Equal", 27, 29),
    Sketcher.Constraint("Equal", 31, 33),
    Sketcher.Constraint("DistanceX", 1, 1, 1, 2, 20.0),
    Sketcher.Constraint("DistanceY", 0, 2, 0, 1, 165.0),
    Sketcher.Constraint("DistanceX", 0, 2, -1, 1, 45.0),
    Sketcher.Constraint("DistanceY", -1, 1, 0, 2, 15.0),
    Sketcher.Constraint("DistanceX", -1, 1, 12, 2, 30.0),
    Sketcher.Constraint("DistanceX", -1, 1, 16, 2, 55.0),
    Sketcher.Constraint("DistanceX", -1, 1, 20, 2, 80.0),
    Sketcher.Constraint("DistanceX", -1, 1, 24, 2, 105.0),
])
pocket4 = doc.addObject("PartDesign::Pocket", "Pocket003")
body.addObject(pocket4)
pocket4.Profile = sketch7
pocket4.Length = 5

sketch8 = doc.addObject("Sketcher::SketchObject", "Sketch007")
body.addObject(sketch8)
sketch8.AttachmentSupport = (doc.XY_Plane, [""])
sketch8.MapMode = "FlatFace"
sketch8.AttachmentOffset = App.Placement(V(0, 0, -110), App.Rotation())
sketch8.addGeometry([
    Part.LineSegment(V(100, 180, 0), V(100, 15, 0)),
    Part.LineSegment(V(100, 15, 0), V(80, 15, 0)),
    Part.LineSegment(V(80, 15, 0), V(80, 180, 0)),
    Part.LineSegment(V(80, 180, 0), V(100, 180, 0)),
    Part.LineSegment(V(75, 180, 0), V(75, 15, 0)),
    Part.LineSegment(V(75, 15, 0), V(55, 15, 0)),
    Part.LineSegment(V(55, 15, 0), V(55, 180, 0)),
    Part.LineSegment(V(55, 180, 0), V(75, 180, 0)),
    Part.LineSegment(V(50, 180, 0), V(50, 15, 0)),
    Part.LineSegment(V(50, 15, 0), V(30, 15, 0)),
    Part.LineSegment(V(30, 15, 0), V(30, 180, 0)),
    Part.LineSegment(V(30, 180, 0), V(50, 180, 0)),
    Part.LineSegment(V(25, 180, 0), V(25, 15, 0)),
    Part.LineSegment(V(25, 15, 0), V(5, 15, 0)),
    Part.LineSegment(V(5, 15, 0), V(5, 180, 0)),
    Part.LineSegment(V(5, 180, 0), V(25, 180, 0)),
    Part.LineSegment(V(0, 180, 0), V(0, 15, 0)),
    Part.LineSegment(V(0, 15, 0), V(-20, 15, 0)),
    Part.LineSegment(V(-20, 15, 0), V(-20, 180, 0)),
    Part.LineSegment(V(-20, 180, 0), V(0, 180, 0)),
    Part.LineSegment(V(-25, 180, 0), V(-25, 15, 0)),
    Part.LineSegment(V(-25, 15, 0), V(-45, 15, 0)),
    Part.LineSegment(V(-45, 15, 0), V(-45, 180, 0)),
    Part.LineSegment(V(-45, 180, 0), V(-25, 180, 0)),
    Part.LineSegment(V(-50, 180, 0), V(-50, 15, 0)),
    Part.LineSegment(V(-50, 15, 0), V(-70, 15, 0)),
    Part.LineSegment(V(-70, 15, 0), V(-70, 180, 0)),
    Part.LineSegment(V(-70, 180, 0), V(-50, 180, 0)),
    Part.LineSegment(V(-75, 180, 0), V(-75, 15, 0)),
    Part.LineSegment(V(-75, 15, 0), V(-95, 15, 0)),
    Part.LineSegment(V(-95, 15, 0), V(-95, 180, 0)),
    Part.LineSegment(V(-95, 180, 0), V(-75, 180, 0)),
    Part.LineSegment(V(125, 180, 0), V(125, 15, 0)),
    Part.LineSegment(V(125, 15, 0), V(105, 15, 0)),
    Part.LineSegment(V(105, 15, 0), V(105, 180, 0)),
    Part.LineSegment(V(105, 180, 0), V(125, 180, 0)),
], False)
sketch8.addConstraint([
    Sketcher.Constraint("Coincident", 0, 2, 1, 1),
    Sketcher.Constraint("Coincident", 1, 2, 2, 1),
    Sketcher.Constraint("Coincident", 2, 2, 3, 1),
    Sketcher.Constraint("Coincident", 3, 2, 0, 1),
    Sketcher.Constraint("Coincident", 4, 2, 5, 1),
    Sketcher.Constraint("Coincident", 5, 2, 6, 1),
    Sketcher.Constraint("Coincident", 6, 2, 7, 1),
    Sketcher.Constraint("Coincident", 7, 2, 4, 1),
    Sketcher.Constraint("Coincident", 8, 2, 9, 1),
    Sketcher.Constraint("Coincident", 9, 2, 10, 1),
    Sketcher.Constraint("Coincident", 10, 2, 11, 1),
    Sketcher.Constraint("Coincident", 11, 2, 8, 1),
    Sketcher.Constraint("Coincident", 12, 2, 13, 1),
    Sketcher.Constraint("Coincident", 13, 2, 14, 1),
    Sketcher.Constraint("Coincident", 14, 2, 15, 1),
    Sketcher.Constraint("Coincident", 15, 2, 12, 1),
    Sketcher.Constraint("Coincident", 16, 2, 17, 1),
    Sketcher.Constraint("Coincident", 17, 2, 18, 1),
    Sketcher.Constraint("Coincident", 18, 2, 19, 1),
    Sketcher.Constraint("Coincident", 19, 2, 16, 1),
    Sketcher.Constraint("Coincident", 20, 2, 21, 1),
    Sketcher.Constraint("Coincident", 21, 2, 22, 1),
    Sketcher.Constraint("Coincident", 22, 2, 23, 1),
    Sketcher.Constraint("Coincident", 23, 2, 20, 1),
    Sketcher.Constraint("Coincident", 24, 2, 25, 1),
    Sketcher.Constraint("Coincident", 25, 2, 26, 1),
    Sketcher.Constraint("Coincident", 26, 2, 27, 1),
    Sketcher.Constraint("Coincident", 27, 2, 24, 1),
    Sketcher.Constraint("Coincident", 28, 2, 29, 1),
    Sketcher.Constraint("Coincident", 29, 2, 30, 1),
    Sketcher.Constraint("Coincident", 30, 2, 31, 1),
    Sketcher.Constraint("Coincident", 31, 2, 28, 1),
    Sketcher.Constraint("Coincident", 32, 2, 33, 1),
    Sketcher.Constraint("Coincident", 33, 2, 34, 1),
    Sketcher.Constraint("Coincident", 34, 2, 35, 1),
    Sketcher.Constraint("Coincident", 35, 2, 32, 1),
    Sketcher.Constraint("Vertical", 0),
    Sketcher.Constraint("Horizontal", 1),
    Sketcher.Constraint("Vertical", 2),
    Sketcher.Constraint("Horizontal", 3),
    Sketcher.Constraint("Vertical", 4),
    Sketcher.Constraint("Horizontal", 5),
    Sketcher.Constraint("Vertical", 6),
    Sketcher.Constraint("Horizontal", 7),
    Sketcher.Constraint("Vertical", 8),
    Sketcher.Constraint("Horizontal", 9),
    Sketcher.Constraint("Vertical", 10),
    Sketcher.Constraint("Horizontal", 11),
    Sketcher.Constraint("Vertical", 12),
    Sketcher.Constraint("Horizontal", 13),
    Sketcher.Constraint("Vertical", 14),
    Sketcher.Constraint("Horizontal", 15),
    Sketcher.Constraint("Vertical", 16),
    Sketcher.Constraint("Horizontal", 17),
    Sketcher.Constraint("Vertical", 18),
    Sketcher.Constraint("Horizontal", 19),
    Sketcher.Constraint("Vertical", 20),
    Sketcher.Constraint("Horizontal", 21),
    Sketcher.Constraint("Vertical", 22),
    Sketcher.Constraint("Horizontal", 23),
    Sketcher.Constraint("Vertical", 24),
    Sketcher.Constraint("Horizontal", 25),
    Sketcher.Constraint("Vertical", 26),
    Sketcher.Constraint("Horizontal", 27),
    Sketcher.Constraint("Vertical", 28),
    Sketcher.Constraint("Horizontal", 29),
    Sketcher.Constraint("Vertical", 30),
    Sketcher.Constraint("Horizontal", 31),
    Sketcher.Constraint("Vertical", 32),
    Sketcher.Constraint("Horizontal", 33),
    Sketcher.Constraint("Vertical", 34),
    Sketcher.Constraint("Horizontal", 35),
    Sketcher.Constraint("Symmetric", 12, 2, 20, 2, -2),
    Sketcher.Constraint("Symmetric", 8, 2, 24, 2, -2),
    Sketcher.Constraint("Symmetric", 4, 2, 28, 2, -2),
    Sketcher.Constraint("PointOnObject", 16, 2, -2),
    Sketcher.Constraint("Horizontal", 1, 2, 4, 2),
    Sketcher.Constraint("Horizontal", 3, 2, 6, 2),
    Sketcher.Constraint("Horizontal", 5, 2, 8, 2),
    Sketcher.Constraint("Horizontal", 7, 2, 10, 2),
    Sketcher.Constraint("Horizontal", 9, 2, 12, 2),
    Sketcher.Constraint("Horizontal", 11, 2, 14, 2),
    Sketcher.Constraint("Horizontal", 13, 2, 16, 2),
    Sketcher.Constraint("Horizontal", 15, 2, 18, 2),
    Sketcher.Constraint("Horizontal", 19, 2, 22, 2),
    Sketcher.Constraint("Horizontal", 23, 2, 26, 2),
    Sketcher.Constraint("Horizontal", 27, 2, 30, 2),
    Sketcher.Constraint("Horizontal", 29, 2, 32, 2),
    Sketcher.Constraint("Horizontal", 31, 2, 34, 2),
    Sketcher.Constraint("Equal", 3, 5),
    Sketcher.Constraint("Equal", 7, 9),
    Sketcher.Constraint("Equal", 11, 13),
    Sketcher.Constraint("Equal", 15, 17),
    Sketcher.Constraint("Equal", 19, 21),
    Sketcher.Constraint("Equal", 23, 25),
    Sketcher.Constraint("Equal", 27, 29),
    Sketcher.Constraint("Equal", 31, 33),
    Sketcher.Constraint("DistanceX", 1, 2, 1, 1, 20.0),
    Sketcher.Constraint("DistanceY", 0, 2, 0, 1, 165.0),
    Sketcher.Constraint("DistanceX", -1, 1, 0, 2, 100.0),
    Sketcher.Constraint("DistanceY", -1, 1, 0, 2, 15.0),
    Sketcher.Constraint("DistanceX", -1, 1, 4, 2, 75.0),
    Sketcher.Constraint("DistanceX", -1, 1, 8, 2, 50.0),
    Sketcher.Constraint("DistanceX", -1, 1, 12, 2, 25.0),
    Sketcher.Constraint("DistanceX", -1, 1, 32, 2, 125.0),
])
pocket5 = doc.addObject("PartDesign::Pocket", "Pocket004")
body.addObject(pocket5)
pocket5.Profile = sketch8
pocket5.Length = 5
pocket5.Reversed = True

doc.recompute()
